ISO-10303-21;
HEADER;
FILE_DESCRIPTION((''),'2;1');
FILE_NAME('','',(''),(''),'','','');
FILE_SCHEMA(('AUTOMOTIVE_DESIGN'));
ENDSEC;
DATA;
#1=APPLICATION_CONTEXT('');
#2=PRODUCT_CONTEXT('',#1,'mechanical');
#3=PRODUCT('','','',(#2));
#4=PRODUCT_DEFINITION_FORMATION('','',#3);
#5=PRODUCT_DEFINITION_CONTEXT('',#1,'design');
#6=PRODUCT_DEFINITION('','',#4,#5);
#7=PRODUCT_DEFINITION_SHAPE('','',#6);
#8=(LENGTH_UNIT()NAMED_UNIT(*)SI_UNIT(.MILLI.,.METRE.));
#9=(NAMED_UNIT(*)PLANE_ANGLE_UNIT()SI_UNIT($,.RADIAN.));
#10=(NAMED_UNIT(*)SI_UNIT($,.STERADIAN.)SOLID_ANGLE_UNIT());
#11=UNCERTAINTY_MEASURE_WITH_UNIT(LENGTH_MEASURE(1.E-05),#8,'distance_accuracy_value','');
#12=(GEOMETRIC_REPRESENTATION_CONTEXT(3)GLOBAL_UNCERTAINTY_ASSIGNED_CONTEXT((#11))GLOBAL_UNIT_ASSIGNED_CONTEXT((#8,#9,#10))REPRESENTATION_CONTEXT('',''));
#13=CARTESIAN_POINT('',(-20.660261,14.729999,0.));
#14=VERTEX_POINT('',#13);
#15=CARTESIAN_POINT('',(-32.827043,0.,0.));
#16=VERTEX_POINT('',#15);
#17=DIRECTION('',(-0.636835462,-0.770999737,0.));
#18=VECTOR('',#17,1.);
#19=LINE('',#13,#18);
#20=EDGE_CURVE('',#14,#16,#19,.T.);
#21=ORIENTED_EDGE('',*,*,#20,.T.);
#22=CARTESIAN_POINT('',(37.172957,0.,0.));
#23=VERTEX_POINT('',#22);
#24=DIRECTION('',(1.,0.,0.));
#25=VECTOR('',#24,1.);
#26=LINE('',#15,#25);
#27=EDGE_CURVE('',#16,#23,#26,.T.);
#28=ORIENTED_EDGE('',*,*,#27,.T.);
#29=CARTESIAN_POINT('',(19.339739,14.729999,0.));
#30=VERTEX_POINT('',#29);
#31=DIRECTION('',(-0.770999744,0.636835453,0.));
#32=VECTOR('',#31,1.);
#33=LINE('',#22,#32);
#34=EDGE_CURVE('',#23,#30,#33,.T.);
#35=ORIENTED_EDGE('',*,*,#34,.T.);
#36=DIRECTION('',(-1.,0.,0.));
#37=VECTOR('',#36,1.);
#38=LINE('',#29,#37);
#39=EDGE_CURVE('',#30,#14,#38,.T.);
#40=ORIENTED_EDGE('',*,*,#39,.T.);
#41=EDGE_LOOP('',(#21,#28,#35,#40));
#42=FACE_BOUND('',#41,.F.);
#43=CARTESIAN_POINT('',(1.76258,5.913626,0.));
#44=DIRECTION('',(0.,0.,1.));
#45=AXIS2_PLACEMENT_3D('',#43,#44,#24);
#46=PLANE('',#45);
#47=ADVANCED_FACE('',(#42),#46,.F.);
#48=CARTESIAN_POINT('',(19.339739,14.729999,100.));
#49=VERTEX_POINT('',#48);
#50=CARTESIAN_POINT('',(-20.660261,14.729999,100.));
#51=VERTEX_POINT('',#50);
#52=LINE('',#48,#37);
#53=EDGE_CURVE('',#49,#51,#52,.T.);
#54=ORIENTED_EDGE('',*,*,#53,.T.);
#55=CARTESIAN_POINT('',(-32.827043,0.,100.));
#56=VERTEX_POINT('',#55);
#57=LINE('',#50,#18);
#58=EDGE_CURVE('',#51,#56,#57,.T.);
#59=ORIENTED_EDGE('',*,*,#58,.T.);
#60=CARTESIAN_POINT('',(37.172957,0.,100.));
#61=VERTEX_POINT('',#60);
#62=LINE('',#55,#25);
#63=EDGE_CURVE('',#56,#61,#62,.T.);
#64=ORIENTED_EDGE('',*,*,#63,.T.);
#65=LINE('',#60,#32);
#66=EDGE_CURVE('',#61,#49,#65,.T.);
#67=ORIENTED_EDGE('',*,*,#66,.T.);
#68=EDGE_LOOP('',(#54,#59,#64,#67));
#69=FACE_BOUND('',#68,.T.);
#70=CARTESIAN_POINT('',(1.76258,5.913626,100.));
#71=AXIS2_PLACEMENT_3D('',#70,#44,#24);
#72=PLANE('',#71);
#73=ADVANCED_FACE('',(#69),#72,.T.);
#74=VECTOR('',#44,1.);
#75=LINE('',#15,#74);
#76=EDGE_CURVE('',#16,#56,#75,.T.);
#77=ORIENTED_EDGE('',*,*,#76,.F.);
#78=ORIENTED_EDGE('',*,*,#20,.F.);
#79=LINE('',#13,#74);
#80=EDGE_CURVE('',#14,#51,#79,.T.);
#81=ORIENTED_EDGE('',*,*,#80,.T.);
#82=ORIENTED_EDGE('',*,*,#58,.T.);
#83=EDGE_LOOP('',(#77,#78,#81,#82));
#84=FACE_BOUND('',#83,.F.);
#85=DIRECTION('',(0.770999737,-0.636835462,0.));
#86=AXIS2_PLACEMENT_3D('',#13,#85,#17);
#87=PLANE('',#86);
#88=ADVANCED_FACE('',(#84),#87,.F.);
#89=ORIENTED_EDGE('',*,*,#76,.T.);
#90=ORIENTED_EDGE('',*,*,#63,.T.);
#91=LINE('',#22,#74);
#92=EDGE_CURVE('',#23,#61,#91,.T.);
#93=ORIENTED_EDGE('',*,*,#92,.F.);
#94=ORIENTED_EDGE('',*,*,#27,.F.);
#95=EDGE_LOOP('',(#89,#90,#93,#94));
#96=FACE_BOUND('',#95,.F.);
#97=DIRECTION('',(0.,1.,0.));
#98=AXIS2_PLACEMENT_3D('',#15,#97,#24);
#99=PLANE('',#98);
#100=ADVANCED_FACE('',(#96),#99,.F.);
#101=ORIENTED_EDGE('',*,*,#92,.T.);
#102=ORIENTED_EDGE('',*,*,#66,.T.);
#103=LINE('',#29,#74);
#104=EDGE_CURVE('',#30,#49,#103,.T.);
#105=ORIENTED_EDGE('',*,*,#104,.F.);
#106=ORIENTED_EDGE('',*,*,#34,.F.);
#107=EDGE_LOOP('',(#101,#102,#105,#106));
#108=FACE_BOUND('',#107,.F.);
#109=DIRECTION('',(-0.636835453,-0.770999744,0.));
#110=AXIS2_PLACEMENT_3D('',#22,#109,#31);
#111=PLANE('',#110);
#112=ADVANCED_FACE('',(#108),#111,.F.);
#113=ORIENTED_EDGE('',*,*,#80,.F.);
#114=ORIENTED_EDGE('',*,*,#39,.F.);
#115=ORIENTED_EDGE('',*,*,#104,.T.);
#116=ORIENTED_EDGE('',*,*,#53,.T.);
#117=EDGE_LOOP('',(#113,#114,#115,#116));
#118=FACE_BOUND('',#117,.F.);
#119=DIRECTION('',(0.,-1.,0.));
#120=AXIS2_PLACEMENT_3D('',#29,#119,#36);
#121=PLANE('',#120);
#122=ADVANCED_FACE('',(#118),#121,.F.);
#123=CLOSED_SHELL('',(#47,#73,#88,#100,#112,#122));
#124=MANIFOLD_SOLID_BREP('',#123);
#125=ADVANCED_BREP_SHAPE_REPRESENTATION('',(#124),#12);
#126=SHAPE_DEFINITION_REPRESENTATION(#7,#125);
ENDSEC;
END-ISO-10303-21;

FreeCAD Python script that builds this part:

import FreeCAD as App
import Part
import Sketcher

doc = App.newDocument("Part")
body = doc.addObject("PartDesign::Body", "Body")

# Sketch on XY plane
sketch1 = doc.addObject("Sketcher::SketchObject", "Sketch")
body.addObject(sketch1)
sketch1.AttachmentSupport = (doc.XY_Plane, [""])
sketch1.MapMode = "FlatFace"
sketch1.addGeometry([
    Part.LineSegment(App.Vector(37, 0, 0), App.Vector(19, 15, 0)),
    Part.LineSegment(App.Vector(19, 15, 0), App.Vector(-21, 15, 0)),
    Part.LineSegment(App.Vector(-21, 15, 0), App.Vector(-33, 0, 0)),
    Part.LineSegment(App.Vector(-33, 0, 0), App.Vector(37, 0, 0)),
], False)
sketch1.addConstraint([
    Sketcher.Constraint("Coincident", 0, 2, 1, 1),
    Sketcher.Constraint("Coincident", 1, 2, 2, 1),
    Sketcher.Constraint("Coincident", 2, 2, 3, 1),
    Sketcher.Constraint("Coincident", 3, 2, 0, 1),
    Sketcher.Constraint("Horizontal", 1),
    Sketcher.Constraint("Horizontal", 3),
    Sketcher.Constraint("PointOnObject", 2, 2, -1),
    Sketcher.Constraint("Perpendicular", 0, 2),
    Sketcher.Constraint("DistanceX", 1, 2, 1, 1, 40.0),
    Sketcher.Constraint("DistanceX", 3, 1, 3, 2, 70.0),
    Sketcher.Constraint("DistanceY", -1, 1, 0, 2, 14.729999),
    Sketcher.Constraint("DistanceX", -1, 1, 0, 2, 19.339739),
])
pad1 = doc.addObject("PartDesign::Pad", "Pad")
body.addObject(pad1)
pad1.Profile = sketch1
pad1.Length = 100

doc.recompute()
